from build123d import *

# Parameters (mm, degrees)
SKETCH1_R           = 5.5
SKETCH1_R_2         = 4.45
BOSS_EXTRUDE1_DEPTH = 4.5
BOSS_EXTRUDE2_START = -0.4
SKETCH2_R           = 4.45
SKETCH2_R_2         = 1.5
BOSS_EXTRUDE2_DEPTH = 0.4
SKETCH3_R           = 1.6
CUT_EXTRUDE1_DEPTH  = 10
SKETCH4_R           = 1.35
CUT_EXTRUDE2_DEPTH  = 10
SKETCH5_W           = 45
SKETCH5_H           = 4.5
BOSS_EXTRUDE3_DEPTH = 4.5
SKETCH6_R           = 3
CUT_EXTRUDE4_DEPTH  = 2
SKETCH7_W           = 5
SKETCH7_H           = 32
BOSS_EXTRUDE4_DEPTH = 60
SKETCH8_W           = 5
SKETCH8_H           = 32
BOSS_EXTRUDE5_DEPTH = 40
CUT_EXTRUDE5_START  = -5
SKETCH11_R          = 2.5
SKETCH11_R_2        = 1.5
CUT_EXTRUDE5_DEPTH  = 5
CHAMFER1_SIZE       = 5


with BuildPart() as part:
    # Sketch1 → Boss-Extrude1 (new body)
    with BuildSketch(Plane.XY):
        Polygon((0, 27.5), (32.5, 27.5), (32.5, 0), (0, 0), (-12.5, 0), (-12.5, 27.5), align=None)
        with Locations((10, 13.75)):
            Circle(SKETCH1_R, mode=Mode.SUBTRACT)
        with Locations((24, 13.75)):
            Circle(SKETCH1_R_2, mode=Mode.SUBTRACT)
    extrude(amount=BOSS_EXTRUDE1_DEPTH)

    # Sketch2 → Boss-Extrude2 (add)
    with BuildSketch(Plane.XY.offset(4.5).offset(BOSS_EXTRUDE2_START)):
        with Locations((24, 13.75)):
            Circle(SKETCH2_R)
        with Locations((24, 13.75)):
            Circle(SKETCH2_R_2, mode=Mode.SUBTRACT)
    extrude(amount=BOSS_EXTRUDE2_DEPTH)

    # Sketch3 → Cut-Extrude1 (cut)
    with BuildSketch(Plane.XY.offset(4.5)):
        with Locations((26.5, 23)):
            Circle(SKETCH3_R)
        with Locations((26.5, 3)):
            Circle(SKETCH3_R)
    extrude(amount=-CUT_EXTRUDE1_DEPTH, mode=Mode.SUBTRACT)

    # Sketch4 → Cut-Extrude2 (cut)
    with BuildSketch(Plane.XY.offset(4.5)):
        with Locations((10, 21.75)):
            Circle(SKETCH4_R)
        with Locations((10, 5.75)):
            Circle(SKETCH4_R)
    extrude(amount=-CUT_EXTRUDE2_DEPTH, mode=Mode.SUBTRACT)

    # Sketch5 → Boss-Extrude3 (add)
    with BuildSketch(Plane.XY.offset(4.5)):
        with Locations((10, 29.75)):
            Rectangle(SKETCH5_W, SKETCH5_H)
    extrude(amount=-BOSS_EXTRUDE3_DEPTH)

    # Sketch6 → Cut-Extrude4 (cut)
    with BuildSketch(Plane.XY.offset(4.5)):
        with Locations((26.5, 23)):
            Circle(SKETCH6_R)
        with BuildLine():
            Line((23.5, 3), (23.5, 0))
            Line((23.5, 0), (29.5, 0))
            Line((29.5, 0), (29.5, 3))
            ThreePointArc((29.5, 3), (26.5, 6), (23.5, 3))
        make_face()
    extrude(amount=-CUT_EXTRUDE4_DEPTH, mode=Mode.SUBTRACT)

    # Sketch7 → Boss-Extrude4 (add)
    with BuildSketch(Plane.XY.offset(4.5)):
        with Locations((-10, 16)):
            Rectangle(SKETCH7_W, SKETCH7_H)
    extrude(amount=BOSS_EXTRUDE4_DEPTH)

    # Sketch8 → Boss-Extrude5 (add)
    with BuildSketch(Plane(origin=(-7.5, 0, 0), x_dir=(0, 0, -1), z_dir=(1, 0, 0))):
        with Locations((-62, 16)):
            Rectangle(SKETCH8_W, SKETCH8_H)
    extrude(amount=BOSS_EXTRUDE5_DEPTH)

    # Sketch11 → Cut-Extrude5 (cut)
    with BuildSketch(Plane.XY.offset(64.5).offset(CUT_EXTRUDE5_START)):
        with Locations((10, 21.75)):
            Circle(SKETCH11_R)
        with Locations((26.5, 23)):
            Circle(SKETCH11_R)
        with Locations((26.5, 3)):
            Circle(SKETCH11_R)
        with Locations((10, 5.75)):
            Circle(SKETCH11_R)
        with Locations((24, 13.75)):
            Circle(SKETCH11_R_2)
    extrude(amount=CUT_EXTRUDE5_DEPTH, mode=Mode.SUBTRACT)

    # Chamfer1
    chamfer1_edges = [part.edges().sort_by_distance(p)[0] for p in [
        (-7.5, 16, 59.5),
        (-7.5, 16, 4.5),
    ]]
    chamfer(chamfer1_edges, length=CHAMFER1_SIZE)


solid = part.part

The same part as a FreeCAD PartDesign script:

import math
import FreeCAD as App
import Part
import Sketcher

V = App.Vector
Q = App.Units.Quantity


def edges_at(feature, points):
    """Names of the edges that pass closest to the given points."""
    edges = feature.Shape.Edges
    near = lambda p: min(range(len(edges)), key=lambda i: edges[i].distToShape(Part.Vertex(*p))[0])
    return sorted({f"Edge{near(p) + 1}" for p in points})

doc = App.newDocument("Part")
body = doc.addObject("PartDesign::Body", "Body")

# Sketch on XY plane
sketch1 = body.newObject("Sketcher::SketchObject", "Sketch")
sketch1.AttachmentSupport = (doc.getObject("XY_Plane"), [""])
sketch1.MapMode = "FlatFace"
sketch1.addGeometry([
    Part.LineSegment(V(32.5, 27.5, 0), V(-12.5, 27.5, 0)),  # 0
    Part.LineSegment(V(-12.5, 27.5, 0), V(-12.5, 0, 0)),  # 1
    Part.LineSegment(V(-12.5, 0, 0), V(32.5, 0, 0)),  # 2
    Part.LineSegment(V(32.5, 0, 0), V(32.5, 27.5, 0)),  # 3
    Part.Circle(V(24, 13.8, 0), V(0, 0, 1), 4.5),  # 4
    Part.Circle(V(10, 13.8, 0), V(0, 0, 1), 5.5),  # 5
], False)
sketch1.addConstraint([
    Sketcher.Constraint("Coincident", 0, 2, 1, 1),
    Sketcher.Constraint("Coincident", 1, 2, 2, 1),
    Sketcher.Constraint("Coincident", 2, 2, 3, 1),
    Sketcher.Constraint("Coincident", 3, 2, 0, 1),
    Sketcher.Constraint("Horizontal", 0),
    Sketcher.Constraint("Vertical", 1),
    Sketcher.Constraint("Horizontal", 2),
    Sketcher.Constraint("Vertical", 3),
    Sketcher.Constraint("PointOnObject", 1, 2, -1),
    Sketcher.Constraint("Horizontal", 4, 3, 5, 3),
    Sketcher.Constraint("Diameter", 5, Q("11 mm")),
    Sketcher.Constraint("Diameter", 4, Q("8.9 mm")),
    Sketcher.Constraint("DistanceX", 0, 2, 0, 1, Q("45 mm")),
    Sketcher.Constraint("DistanceY", 1, 2, 1, 1, Q("27.5 mm")),
    Sketcher.Constraint("DistanceX", -1, 1, 4, 3, Q("24 mm")),
    Sketcher.Constraint("DistanceX", -1, 1, 5, 3, Q("10 mm")),
    Sketcher.Constraint("DistanceX", 0, 2, -1, 1, Q("12.5 mm")),
    Sketcher.Constraint("DistanceY", -1, 1, 4, 3, Q("13.75 mm")),
])
pad1 = body.newObject("PartDesign::Pad", "Pad")
pad1.Profile = sketch1
pad1.Length = 4.5

# Sketch on XY plane
sketch2 = body.newObject("Sketcher::SketchObject", "Sketch001")
sketch2.AttachmentSupport = (doc.getObject("XY_Plane"), [""])
sketch2.MapMode = "FlatFace"
sketch2.AttachmentOffset = App.Placement(V(0, 0, 4.1), App.Rotation())
sketch2.addGeometry([
    Part.Circle(V(24, 13.8, 0), V(0, 0, 1), 4.5),
    Part.Circle(V(24, 13.8, 0), V(0, 0, 1), 1.5),
], False)
sketch2.addConstraint([
    Sketcher.Constraint("Coincident", 1, 3, 0, 3),
    Sketcher.Constraint("Diameter", 1, Q("3 mm")),
    Sketcher.Constraint("Diameter", 0, Q("8.9 mm")),
    Sketcher.Constraint("DistanceX", -1, 1, 0, 3, Q("24 mm")),
    Sketcher.Constraint("DistanceY", -1, 1, 0, 3, Q("13.75 mm")),
])
pad2 = body.newObject("PartDesign::Pad", "Pad001")
pad2.Profile = sketch2
pad2.Length = 0.4

# Sketch on XY plane
sketch3 = body.newObject("Sketcher::SketchObject", "Sketch002")
sketch3.AttachmentSupport = (doc.getObject("XY_Plane"), [""])
sketch3.MapMode = "FlatFace"
sketch3.AttachmentOffset = App.Placement(V(0, 0, 4.5), App.Rotation())
sketch3.addGeometry([
    Part.Circle(V(26.5, 23, 0), V(0, 0, 1), 1.6),
    Part.Circle(V(26.5, 3, 0), V(0, 0, 1), 1.6),
], False)
sketch3.addConstraint([
    Sketcher.Constraint("Equal", 0, 1),
    Sketcher.Constraint("Vertical", 0, 3, 1, 3),
    Sketcher.Constraint("Diameter", 0, Q("3.2 mm")),
    Sketcher.Constraint("DistanceY", -1, 1, 0, 3, Q("23 mm")),
    Sketcher.Constraint("DistanceY", -1, 1, 1, 3, Q("3 mm")),
    Sketcher.Constraint("DistanceX", -1, 1, 0, 3, Q("26.5 mm")),
])
pocket1 = body.newObject("PartDesign::Pocket", "Pocket")
pocket1.Profile = sketch3
pocket1.Length = 10

# Sketch on XY plane
sketch4 = body.newObject("Sketcher::SketchObject", "Sketch003")
sketch4.AttachmentSupport = (doc.getObject("XY_Plane"), [""])
sketch4.MapMode = "FlatFace"
sketch4.AttachmentOffset = App.Placement(V(0, 0, 4.5), App.Rotation())
sketch4.addGeometry([
    Part.Circle(V(10, 21.8, 0), V(0, 0, 1), 1.4),
    Part.Circle(V(10, 5.8, 0), V(0, 0, 1), 1.4),
], False)
sketch4.addConstraint([
    Sketcher.Constraint("Equal", 0, 1),
    Sketcher.Constraint("Vertical", 0, 3, 1, 3),
    Sketcher.Constraint("Diameter", 0, Q("2.7 mm")),
    Sketcher.Constraint("DistanceX", -1, 1, 0, 3, Q("10 mm")),
    Sketcher.Constraint("DistanceY", 1, 3, 0, 3, Q("16 mm")),
    Sketcher.Constraint("DistanceY", -1, 1, 0, 3, Q("21.75 mm")),
])
pocket2 = body.newObject("PartDesign::Pocket", "Pocket001")
pocket2.Profile = sketch4
pocket2.Length = 10

# Sketch on XY plane
sketch5 = body.newObject("Sketcher::SketchObject", "Sketch004")
sketch5.AttachmentSupport = (doc.getObject("XY_Plane"), [""])
sketch5.MapMode = "FlatFace"
sketch5.AttachmentOffset = App.Placement(V(0, 0, 4.5), App.Rotation())
sketch5.addGeometry([
    Part.LineSegment(V(-12.5, 32, 0), V(-12.5, 27.5, 0)),
    Part.LineSegment(V(-12.5, 27.5, 0), V(32.5, 27.5, 0)),
    Part.LineSegment(V(32.5, 27.5, 0), V(32.5, 32, 0)),
    Part.LineSegment(V(32.5, 32, 0), V(-12.5, 32, 0)),
], False)
sketch5.addConstraint([
    Sketcher.Constraint("Coincident", 0, 2, 1, 1),
    Sketcher.Constraint("Coincident", 1, 2, 2, 1),
    Sketcher.Constraint("Coincident", 2, 2, 3, 1),
    Sketcher.Constraint("Coincident", 3, 2, 0, 1),
    Sketcher.Constraint("Vertical", 0),
    Sketcher.Constraint("Horizontal", 1),
    Sketcher.Constraint("Vertical", 2),
    Sketcher.Constraint("Horizontal", 3),
    Sketcher.Constraint("DistanceX", 1, 1, 1, 2, Q("45 mm")),
    Sketcher.Constraint("DistanceY", 0, 2, 0, 1, Q("4.5 mm")),
    Sketcher.Constraint("DistanceY", -1, 1, 2, 2, Q("32 mm")),
    Sketcher.Constraint("DistanceX", 0, 2, -1, 1, Q("12.5 mm")),
])
pad3 = body.newObject("PartDesign::Pad", "Pad002")
pad3.Profile = sketch5
pad3.Length = 4.5
pad3.Reversed = True

# Sketch on XY plane
sketch6 = body.newObject("Sketcher::SketchObject", "Sketch005")
sketch6.AttachmentSupport = (doc.getObject("XY_Plane"), [""])
sketch6.MapMode = "FlatFace"
sketch6.AttachmentOffset = App.Placement(V(0, 0, 4.5), App.Rotation())
sketch6.addGeometry([
    Part.Circle(V(26.5, 23, 0), V(0, 0, 1), 3),  # 0
    Part.LineSegment(V(23.5, 3, 0), V(23.5, 0, 0)),  # 1
    Part.LineSegment(V(23.5, 0, 0), V(29.5, 0, 0)),  # 2
    Part.LineSegment(V(29.5, 0, 0), V(29.5, 3, 0)),  # 3
    Part.ArcOfCircle(Part.Circle(V(26.5, 3, 0), V(0, 0, 1), 3), math.radians(0), math.radians(180)),  # 4
], False)
sketch6.addConstraint([
    Sketcher.Constraint("Coincident", 1, 2, 2, 1),
    Sketcher.Constraint("Coincident", 2, 2, 3, 1),
    Sketcher.Constraint("Tangent", 3, 2, 4, 1),
    Sketcher.Constraint("Tangent", 4, 2, 1, 1),
    Sketcher.Constraint("Vertical", 1),
    Sketcher.Constraint("Horizontal", 2),
    Sketcher.Constraint("Vertical", 3),
    Sketcher.Constraint("Equal", 0, 4),
    Sketcher.Constraint("PointOnObject", 1, 2, -1),
    Sketcher.Constraint("Vertical", 0, 3, 4, 3),
    Sketcher.Constraint("Diameter", 0, Q("6 mm")),
    Sketcher.Constraint("DistanceY", 1, 2, 1, 1, Q("3 mm")),
    Sketcher.Constraint("DistanceY", -1, 1, 0, 3, Q("23 mm")),
    Sketcher.Constraint("DistanceX", -1, 1, 0, 3, Q("26.5 mm")),
])
pocket3 = body.newObject("PartDesign::Pocket", "Pocket002")
pocket3.Profile = sketch6
pocket3.Length = 2

# Sketch on XY plane
sketch7 = body.newObject("Sketcher::SketchObject", "Sketch006")
sketch7.AttachmentSupport = (doc.getObject("XY_Plane"), [""])
sketch7.MapMode = "FlatFace"
sketch7.AttachmentOffset = App.Placement(V(0, 0, 4.5), App.Rotation())
sketch7.addGeometry([
    Part.LineSegment(V(-12, 32, 0), V(-12, 0, 0)),
    Part.LineSegment(V(-12, 0, 0), V(-8, 0, 0)),
    Part.LineSegment(V(-8, 0, 0), V(-8, 32, 0)),
    Part.LineSegment(V(-8, 32, 0), V(-12, 32, 0)),
], False)
sketch7.addConstraint([
    Sketcher.Constraint("Coincident", 0, 2, 1, 1),
    Sketcher.Constraint("Coincident", 1, 2, 2, 1),
    Sketcher.Constraint("Coincident", 2, 2, 3, 1),
    Sketcher.Constraint("Coincident", 3, 2, 0, 1),
    Sketcher.Constraint("Vertical", 0),
    Sketcher.Constraint("Horizontal", 1),
    Sketcher.Constraint("Vertical", 2),
    Sketcher.Constraint("Horizontal", 3),
    Sketcher.Constraint("PointOnObject", 0, 2, -1),
    Sketcher.Constraint("DistanceX", 1, 1, 1, 2, Q("5 mm")),
    Sketcher.Constraint("DistanceY", 0, 2, 0, 1, Q("32 mm")),
    Sketcher.Constraint("DistanceX", 0, 2, -1, 1, Q("12.5 mm")),
])
pad4 = body.newObject("PartDesign::Pad", "Pad003")
pad4.Profile = sketch7
pad4.Length = 60

# Sketch on YZ plane
sketch8 = body.newObject("Sketcher::SketchObject", "Sketch007")
sketch8.AttachmentSupport = (doc.getObject("YZ_Plane"), [""])
sketch8.MapMode = "FlatFace"
sketch8.AttachmentOffset = App.Placement(V(0, 0, -7.5), App.Rotation())
sketch8.addGeometry([
    Part.LineSegment(V(32, 64, 0), V(0, 64, 0)),
    Part.LineSegment(V(0, 64, 0), V(0, 60, 0)),
    Part.LineSegment(V(0, 60, 0), V(32, 60, 0)),
    Part.LineSegment(V(32, 60, 0), V(32, 64, 0)),
], False)
sketch8.addConstraint([
    Sketcher.Constraint("Coincident", 0, 2, 1, 1),
    Sketcher.Constraint("Coincident", 1, 2, 2, 1),
    Sketcher.Constraint("Coincident", 2, 2, 3, 1),
    Sketcher.Constraint("Coincident", 3, 2, 0, 1),
    Sketcher.Constraint("Horizontal", 0),
    Sketcher.Constraint("Vertical", 1),
    Sketcher.Constraint("Horizontal", 2),
    Sketcher.Constraint("Vertical", 3),
    Sketcher.Constraint("PointOnObject", 0, 2, -2),
    Sketcher.Constraint("DistanceX", 0, 2, 0, 1, Q("32 mm")),
    Sketcher.Constraint("DistanceY", 1, 2, 1, 1, Q("5 mm")),
    Sketcher.Constraint("DistanceY", -1, 1, 0, 2, Q("64.5 mm")),
])
pad5 = body.newObject("PartDesign::Pad", "Pad004")
pad5.Profile = sketch8
pad5.Length = 40

# Sketch on XY plane
sketch9 = body.newObject("Sketcher::SketchObject", "Sketch008")
sketch9.AttachmentSupport = (doc.getObject("XY_Plane"), [""])
sketch9.MapMode = "FlatFace"
sketch9.AttachmentOffset = App.Placement(V(0, 0, 59.5), App.Rotation())
sketch9.addGeometry([
    Part.Circle(V(10, 21.8, 0), V(0, 0, 1), 2.5),  # 0
    Part.Circle(V(26.5, 23, 0), V(0, 0, 1), 2.5),  # 1
    Part.Circle(V(26.5, 3, 0), V(0, 0, 1), 2.5),  # 2
    Part.Circle(V(10, 5.8, 0), V(0, 0, 1), 2.5),  # 3
    Part.Circle(V(24, 13.8, 0), V(0, 0, 1), 1.5),  # 4
], False)
sketch9.addConstraint([
    Sketcher.Constraint("Equal", 0, 1),
    Sketcher.Constraint("Equal", 1, 2),
    Sketcher.Constraint("Equal", 2, 3),
    Sketcher.Constraint("Vertical", 1, 3, 2, 3),
    Sketcher.Constraint("Vertical", 0, 3, 3, 3),
    Sketcher.Constraint("Diameter", 0, Q("5 mm")),
    Sketcher.Constraint("Diameter", 4, Q("3 mm")),
    Sketcher.Constraint("DistanceX", -1, 1, 0, 3, Q("10 mm")),
    Sketcher.Constraint("DistanceY", -1, 1, 1, 3, Q("23 mm")),
    Sketcher.Constraint("DistanceY", -1, 1, 2, 3, Q("3 mm")),
    Sketcher.Constraint("DistanceX", -1, 1, 4, 3, Q("24 mm")),
    Sketcher.Constraint("DistanceY", 3, 3, 0, 3, Q("16 mm")),
    Sketcher.Constraint("DistanceY", 4, 3, 0, 3, Q("8 mm")),
    Sketcher.Constraint("DistanceX", -1, 1, 1, 3, Q("26.5 mm")),
    Sketcher.Constraint("DistanceY", -1, 1, 0, 3, Q("21.75 mm")),
])
pocket4 = body.newObject("PartDesign::Pocket", "Pocket003")
pocket4.Profile = sketch9
pocket4.Length = 5
pocket4.Reversed = True
doc.recompute()

chamfer = body.newObject("PartDesign::Chamfer", "Chamfer")
chamfer.Base = (pocket4, edges_at(pocket4, [(-7.5, 16, 59.5), (-7.5, 16, 4.5)]))
chamfer.Size = 5

doc.recompute()
